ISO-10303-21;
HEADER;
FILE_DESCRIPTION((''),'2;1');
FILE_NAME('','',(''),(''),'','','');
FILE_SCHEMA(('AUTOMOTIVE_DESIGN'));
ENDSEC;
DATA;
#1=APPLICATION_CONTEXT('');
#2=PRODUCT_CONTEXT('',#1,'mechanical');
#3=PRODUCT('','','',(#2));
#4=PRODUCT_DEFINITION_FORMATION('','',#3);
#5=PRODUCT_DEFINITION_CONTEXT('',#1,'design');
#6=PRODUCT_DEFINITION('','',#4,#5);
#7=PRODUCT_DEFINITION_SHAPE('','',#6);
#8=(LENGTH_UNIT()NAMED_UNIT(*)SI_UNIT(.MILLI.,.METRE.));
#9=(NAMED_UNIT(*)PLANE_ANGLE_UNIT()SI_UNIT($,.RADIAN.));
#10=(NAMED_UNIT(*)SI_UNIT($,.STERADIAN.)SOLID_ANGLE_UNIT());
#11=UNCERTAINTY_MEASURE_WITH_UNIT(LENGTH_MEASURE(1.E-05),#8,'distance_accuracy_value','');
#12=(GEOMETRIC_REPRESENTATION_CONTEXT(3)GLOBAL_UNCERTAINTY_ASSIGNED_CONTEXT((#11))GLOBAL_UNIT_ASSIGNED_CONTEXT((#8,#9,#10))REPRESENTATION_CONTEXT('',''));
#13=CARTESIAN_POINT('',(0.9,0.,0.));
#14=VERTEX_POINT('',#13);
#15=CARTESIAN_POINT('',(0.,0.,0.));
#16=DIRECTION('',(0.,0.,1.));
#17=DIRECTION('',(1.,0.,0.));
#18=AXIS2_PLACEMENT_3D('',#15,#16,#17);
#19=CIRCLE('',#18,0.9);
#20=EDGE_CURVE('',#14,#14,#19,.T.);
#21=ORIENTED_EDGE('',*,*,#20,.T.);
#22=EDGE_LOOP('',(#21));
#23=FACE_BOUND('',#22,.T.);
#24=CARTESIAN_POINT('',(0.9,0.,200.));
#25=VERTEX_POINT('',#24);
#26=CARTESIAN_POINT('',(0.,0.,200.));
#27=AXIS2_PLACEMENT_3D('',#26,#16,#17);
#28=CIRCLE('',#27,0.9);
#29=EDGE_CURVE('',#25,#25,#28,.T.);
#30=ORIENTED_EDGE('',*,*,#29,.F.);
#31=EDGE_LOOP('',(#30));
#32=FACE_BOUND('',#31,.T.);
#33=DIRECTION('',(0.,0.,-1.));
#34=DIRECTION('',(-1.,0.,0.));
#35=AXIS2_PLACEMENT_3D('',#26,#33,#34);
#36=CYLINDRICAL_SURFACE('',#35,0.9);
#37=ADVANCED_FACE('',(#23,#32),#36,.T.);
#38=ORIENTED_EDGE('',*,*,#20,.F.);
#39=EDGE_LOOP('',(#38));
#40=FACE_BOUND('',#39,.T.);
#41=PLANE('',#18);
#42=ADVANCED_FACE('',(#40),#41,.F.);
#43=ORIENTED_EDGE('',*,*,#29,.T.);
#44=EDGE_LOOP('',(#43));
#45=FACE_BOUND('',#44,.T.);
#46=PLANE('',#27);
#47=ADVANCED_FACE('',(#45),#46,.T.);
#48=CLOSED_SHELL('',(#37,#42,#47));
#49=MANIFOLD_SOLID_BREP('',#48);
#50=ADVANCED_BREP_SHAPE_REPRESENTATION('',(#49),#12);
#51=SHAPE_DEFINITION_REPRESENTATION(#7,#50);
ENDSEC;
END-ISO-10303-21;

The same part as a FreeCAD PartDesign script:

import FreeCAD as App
import Part
import Sketcher
from FreeCAD import Vector

doc = App.newDocument("Part")
params = doc.addObject("Spreadsheet::Sheet", "Params")
for row, (alias, value) in enumerate([
    ("sketch1_diameter", "1.8 mm"),
    ("pad1_length", "200 mm"),
], start=1):
    params.set(f"A{row}", alias)
    params.set(f"B{row}", "=" + value)
    params.setAlias(f"B{row}", alias)

body = doc.addObject("PartDesign::Body", "Body")

# Sketch on XY plane
sketch1 = body.newObject("Sketcher::SketchObject", "Sketch")
sketch1.AttachmentSupport = (doc.getObject("XY_Plane"), [""])
sketch1.MapMode = "FlatFace"
sketch1.addGeometry(Part.Circle(Vector(0, 0, 0), Vector(0, 0, 1), 0.9), False)
sketch1.addConstraint([
    Sketcher.Constraint("Coincident", 0, 3, -1, 1),
    Sketcher.Constraint("Diameter", 0, 1.8),
])
sketch1.setExpression("Constraints[1]", "Params.sketch1_diameter")
pad1 = body.newObject("PartDesign::Pad", "Pad")
pad1.Profile = sketch1
pad1.setExpression("Length", "Params.pad1_length")

doc.recompute()
